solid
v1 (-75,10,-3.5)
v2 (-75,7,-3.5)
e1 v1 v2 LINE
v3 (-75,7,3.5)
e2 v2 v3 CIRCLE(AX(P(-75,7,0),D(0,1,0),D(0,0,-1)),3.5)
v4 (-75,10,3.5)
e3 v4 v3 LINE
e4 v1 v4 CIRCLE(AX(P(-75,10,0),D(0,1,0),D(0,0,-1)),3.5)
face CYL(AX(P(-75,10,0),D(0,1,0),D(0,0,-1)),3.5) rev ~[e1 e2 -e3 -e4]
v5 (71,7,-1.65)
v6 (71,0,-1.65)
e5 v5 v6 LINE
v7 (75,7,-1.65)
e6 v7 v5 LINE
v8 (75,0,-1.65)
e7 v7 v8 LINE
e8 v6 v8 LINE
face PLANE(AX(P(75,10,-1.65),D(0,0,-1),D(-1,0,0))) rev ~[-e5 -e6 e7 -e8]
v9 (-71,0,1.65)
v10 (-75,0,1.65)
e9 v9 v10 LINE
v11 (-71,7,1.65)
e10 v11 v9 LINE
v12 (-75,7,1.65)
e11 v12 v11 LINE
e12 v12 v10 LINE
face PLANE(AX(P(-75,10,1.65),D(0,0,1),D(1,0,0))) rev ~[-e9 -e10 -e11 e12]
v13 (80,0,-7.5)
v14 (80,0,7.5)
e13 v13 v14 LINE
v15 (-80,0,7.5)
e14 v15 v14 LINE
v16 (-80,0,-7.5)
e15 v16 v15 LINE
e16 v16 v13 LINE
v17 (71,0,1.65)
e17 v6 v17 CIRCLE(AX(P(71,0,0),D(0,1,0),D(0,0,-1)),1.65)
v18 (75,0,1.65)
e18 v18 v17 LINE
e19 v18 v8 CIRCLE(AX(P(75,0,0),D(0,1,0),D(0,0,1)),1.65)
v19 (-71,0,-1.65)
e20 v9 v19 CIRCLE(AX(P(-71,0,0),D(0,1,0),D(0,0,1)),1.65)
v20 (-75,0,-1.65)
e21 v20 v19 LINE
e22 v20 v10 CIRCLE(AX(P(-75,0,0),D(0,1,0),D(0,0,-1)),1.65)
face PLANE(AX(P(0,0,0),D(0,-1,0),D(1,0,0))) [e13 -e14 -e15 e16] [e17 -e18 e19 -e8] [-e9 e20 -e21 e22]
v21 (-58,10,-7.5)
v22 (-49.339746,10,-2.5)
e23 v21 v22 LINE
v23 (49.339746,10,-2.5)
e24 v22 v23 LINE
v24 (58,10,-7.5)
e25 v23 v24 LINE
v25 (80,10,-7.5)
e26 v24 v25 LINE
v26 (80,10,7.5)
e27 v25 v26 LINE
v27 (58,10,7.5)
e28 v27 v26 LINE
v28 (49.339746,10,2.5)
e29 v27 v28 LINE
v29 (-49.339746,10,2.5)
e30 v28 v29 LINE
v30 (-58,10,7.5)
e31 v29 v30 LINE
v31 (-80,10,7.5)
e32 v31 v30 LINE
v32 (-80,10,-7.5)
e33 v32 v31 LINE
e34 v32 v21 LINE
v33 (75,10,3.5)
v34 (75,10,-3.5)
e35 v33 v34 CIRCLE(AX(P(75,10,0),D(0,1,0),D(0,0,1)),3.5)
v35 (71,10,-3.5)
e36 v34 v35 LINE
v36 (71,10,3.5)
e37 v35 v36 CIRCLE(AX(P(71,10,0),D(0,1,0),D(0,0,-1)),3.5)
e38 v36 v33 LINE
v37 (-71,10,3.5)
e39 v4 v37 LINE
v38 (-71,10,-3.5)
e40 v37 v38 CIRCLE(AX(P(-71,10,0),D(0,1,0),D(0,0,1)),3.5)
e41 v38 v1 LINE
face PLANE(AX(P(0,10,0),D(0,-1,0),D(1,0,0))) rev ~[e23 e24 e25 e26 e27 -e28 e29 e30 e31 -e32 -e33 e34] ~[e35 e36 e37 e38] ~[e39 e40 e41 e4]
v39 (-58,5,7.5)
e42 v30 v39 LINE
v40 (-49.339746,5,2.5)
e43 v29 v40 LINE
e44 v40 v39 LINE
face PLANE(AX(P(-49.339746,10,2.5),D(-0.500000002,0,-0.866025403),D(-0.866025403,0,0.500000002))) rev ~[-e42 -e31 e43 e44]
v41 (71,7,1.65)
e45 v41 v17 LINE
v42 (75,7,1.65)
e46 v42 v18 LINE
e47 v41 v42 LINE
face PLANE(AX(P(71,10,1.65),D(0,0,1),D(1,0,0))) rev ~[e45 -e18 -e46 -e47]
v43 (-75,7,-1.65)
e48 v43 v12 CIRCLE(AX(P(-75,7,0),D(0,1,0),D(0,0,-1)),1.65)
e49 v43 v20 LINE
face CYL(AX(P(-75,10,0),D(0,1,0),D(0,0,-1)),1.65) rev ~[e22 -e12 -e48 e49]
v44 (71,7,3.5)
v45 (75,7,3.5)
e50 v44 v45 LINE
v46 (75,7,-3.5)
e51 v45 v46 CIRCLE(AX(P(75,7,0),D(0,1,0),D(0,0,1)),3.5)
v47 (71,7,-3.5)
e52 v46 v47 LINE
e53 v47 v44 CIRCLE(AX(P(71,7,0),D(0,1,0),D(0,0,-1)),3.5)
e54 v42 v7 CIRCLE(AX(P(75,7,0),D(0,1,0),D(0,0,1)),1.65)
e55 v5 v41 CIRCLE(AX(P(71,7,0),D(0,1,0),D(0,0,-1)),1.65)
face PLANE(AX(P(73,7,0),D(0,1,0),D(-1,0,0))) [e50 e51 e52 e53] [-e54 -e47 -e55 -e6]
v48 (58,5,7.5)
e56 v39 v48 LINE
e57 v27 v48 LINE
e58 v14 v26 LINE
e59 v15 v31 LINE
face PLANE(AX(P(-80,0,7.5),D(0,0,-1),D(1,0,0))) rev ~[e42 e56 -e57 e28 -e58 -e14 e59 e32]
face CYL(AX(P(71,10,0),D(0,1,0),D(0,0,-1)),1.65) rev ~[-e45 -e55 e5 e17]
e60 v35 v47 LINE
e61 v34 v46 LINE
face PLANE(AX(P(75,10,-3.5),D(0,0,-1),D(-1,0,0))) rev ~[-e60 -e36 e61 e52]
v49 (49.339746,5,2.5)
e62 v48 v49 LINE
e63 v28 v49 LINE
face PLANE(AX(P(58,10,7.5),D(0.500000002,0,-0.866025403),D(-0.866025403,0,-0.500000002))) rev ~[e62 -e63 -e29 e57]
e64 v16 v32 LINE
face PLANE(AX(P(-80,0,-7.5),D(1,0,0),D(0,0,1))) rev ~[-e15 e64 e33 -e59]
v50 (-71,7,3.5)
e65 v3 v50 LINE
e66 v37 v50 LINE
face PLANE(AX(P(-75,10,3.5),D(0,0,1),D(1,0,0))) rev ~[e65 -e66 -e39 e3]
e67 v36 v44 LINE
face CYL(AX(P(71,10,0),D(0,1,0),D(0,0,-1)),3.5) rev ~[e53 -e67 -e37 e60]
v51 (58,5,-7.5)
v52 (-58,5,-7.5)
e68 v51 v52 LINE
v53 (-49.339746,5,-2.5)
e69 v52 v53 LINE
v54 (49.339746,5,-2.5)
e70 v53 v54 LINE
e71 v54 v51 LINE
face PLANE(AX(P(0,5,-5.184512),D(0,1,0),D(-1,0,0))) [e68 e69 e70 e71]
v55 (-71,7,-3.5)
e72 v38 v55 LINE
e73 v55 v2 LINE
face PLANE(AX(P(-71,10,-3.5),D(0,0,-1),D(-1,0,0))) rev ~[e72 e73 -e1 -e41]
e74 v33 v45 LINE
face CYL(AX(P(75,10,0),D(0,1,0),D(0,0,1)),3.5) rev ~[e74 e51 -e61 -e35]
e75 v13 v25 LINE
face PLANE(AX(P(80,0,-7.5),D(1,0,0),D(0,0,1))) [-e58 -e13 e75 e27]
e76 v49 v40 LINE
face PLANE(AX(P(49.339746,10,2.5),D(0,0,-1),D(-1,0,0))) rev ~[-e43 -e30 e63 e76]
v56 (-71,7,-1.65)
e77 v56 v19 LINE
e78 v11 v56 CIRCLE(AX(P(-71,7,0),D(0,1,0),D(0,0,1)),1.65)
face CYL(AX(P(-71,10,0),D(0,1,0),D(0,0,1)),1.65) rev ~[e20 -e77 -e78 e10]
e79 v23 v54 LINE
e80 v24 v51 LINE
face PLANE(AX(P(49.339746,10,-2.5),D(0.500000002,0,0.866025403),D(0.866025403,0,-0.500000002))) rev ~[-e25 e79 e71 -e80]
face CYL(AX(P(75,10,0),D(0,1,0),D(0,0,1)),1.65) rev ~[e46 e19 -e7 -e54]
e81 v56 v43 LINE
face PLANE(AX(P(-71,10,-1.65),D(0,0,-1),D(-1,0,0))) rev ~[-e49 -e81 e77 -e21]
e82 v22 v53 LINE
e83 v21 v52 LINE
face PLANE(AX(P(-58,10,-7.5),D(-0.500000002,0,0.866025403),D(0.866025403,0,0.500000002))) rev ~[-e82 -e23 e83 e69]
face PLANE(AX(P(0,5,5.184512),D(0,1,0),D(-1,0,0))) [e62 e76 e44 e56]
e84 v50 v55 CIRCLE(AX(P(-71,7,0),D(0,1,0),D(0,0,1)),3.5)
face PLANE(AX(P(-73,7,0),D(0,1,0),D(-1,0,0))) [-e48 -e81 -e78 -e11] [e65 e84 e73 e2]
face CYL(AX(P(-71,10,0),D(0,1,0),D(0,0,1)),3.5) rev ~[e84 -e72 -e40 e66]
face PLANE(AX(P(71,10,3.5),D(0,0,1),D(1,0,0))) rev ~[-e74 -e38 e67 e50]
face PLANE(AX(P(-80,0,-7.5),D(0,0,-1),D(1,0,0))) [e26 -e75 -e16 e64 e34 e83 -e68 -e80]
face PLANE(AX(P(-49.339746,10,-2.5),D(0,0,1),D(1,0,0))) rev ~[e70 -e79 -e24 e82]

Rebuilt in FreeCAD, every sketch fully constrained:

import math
import FreeCAD as App
import Part
import Sketcher
from FreeCAD import Vector
Q = App.Units.Quantity

doc = App.newDocument("Part")
params = doc.addObject("Spreadsheet::Sheet", "Params")
for row, (alias, value) in enumerate([
    ("sketch1_width", "160 mm"),
    ("sketch1_height", "15 mm"),
    ("pad1_length", "10 mm"),
    ("sketch2_width", "116 mm"),
    ("sketch2_length", "10 mm"),
    ("pocket1_length", "5 mm"),
    ("sketch3_radius", "3.5 mm"),
    ("sketch3_width", "4 mm"),
    ("pocket2_length", "3 mm"),
    ("sketch4_width", "4 mm"),
    ("sketch4_radius", "1.65 mm"),
], start=1):
    params.set(f"A{row}", alias)
    params.set(f"B{row}", "=" + value)
    params.setAlias(f"B{row}", alias)

body = doc.addObject("PartDesign::Body", "Body")

sketch1 = body.newObject("Sketcher::SketchObject", "Sketch")
sketch1.AttachmentSupport = (doc.getObject("XZ_Plane"), [""])
sketch1.MapMode = "FlatFace"
sketch1.addGeometry(Part.LineSegment(Vector(-80, 8, 0), Vector(-80, -8, 0)), False)
sketch1.addGeometry(Part.LineSegment(Vector(-80, -8, 0), Vector(80, -8, 0)), False)
sketch1.addGeometry(Part.LineSegment(Vector(80, -8, 0), Vector(80, 8, 0)), False)
sketch1.addGeometry(Part.LineSegment(Vector(80, 8, 0), Vector(-80, 8, 0)), False)
sketch1.addConstraint(Sketcher.Constraint("Coincident", 0, 2, 1, 1))
sketch1.addConstraint(Sketcher.Constraint("Coincident", 1, 2, 2, 1))
sketch1.addConstraint(Sketcher.Constraint("Coincident", 2, 2, 3, 1))
sketch1.addConstraint(Sketcher.Constraint("Coincident", 3, 2, 0, 1))
sketch1.addConstraint(Sketcher.Constraint("Vertical", 0))
sketch1.addConstraint(Sketcher.Constraint("Horizontal", 1))
sketch1.addConstraint(Sketcher.Constraint("Vertical", 2))
sketch1.addConstraint(Sketcher.Constraint("Horizontal", 3))
sketch1.addConstraint(Sketcher.Constraint("Symmetric", 0, 2, 2, 2, -1, 1))
sketch1.addConstraint(Sketcher.Constraint("DistanceX", 1, 1, 1, 2, Q("160 mm")))
sketch1.addConstraint(Sketcher.Constraint("DistanceY", 0, 2, 0, 1, Q("15 mm")))
sketch1.setExpression("Constraints[9]", "Params.sketch1_width")
sketch1.setExpression("Constraints[10]", "Params.sketch1_height")
pad1 = body.newObject("PartDesign::Pad", "Pad")
pad1.Profile = sketch1
pad1.setExpression("Length", "Params.pad1_length")
pad1.Reversed = True

sketch2 = body.newObject("Sketcher::SketchObject", "Sketch001")
sketch2.AttachmentSupport = (doc.getObject("XZ_Plane"), [""])
sketch2.MapMode = "FlatFace"
sketch2.AttachmentOffset = App.Placement(Vector(0, 0, -10), App.Rotation())
sketch2.addGeometry(Part.LineSegment(Vector(-58, 8, 0), Vector(58, 8, 0)), False)
sketch2.addGeometry(Part.LineSegment(Vector(58, 8, 0), Vector(49, 2, 0)), False)
sketch2.addGeometry(Part.LineSegment(Vector(49, 2, 0), Vector(-49, 2, 0)), False)
sketch2.addGeometry(Part.LineSegment(Vector(-49, 2, 0), Vector(-58, 8, 0)), False)
sketch2.addGeometry(Part.LineSegment(Vector(49, -2, 0), Vector(58, -8, 0)), False)
sketch2.addGeometry(Part.LineSegment(Vector(58, -8, 0), Vector(-58, -8, 0)), False)
sketch2.addGeometry(Part.LineSegment(Vector(-58, -8, 0), Vector(-49, -2, 0)), False)
sketch2.addGeometry(Part.LineSegment(Vector(-49, -2, 0), Vector(49, -2, 0)), False)
sketch2.addConstraint(Sketcher.Constraint("Coincident", 0, 2, 1, 1))
sketch2.addConstraint(Sketcher.Constraint("Coincident", 1, 2, 2, 1))
sketch2.addConstraint(Sketcher.Constraint("Coincident", 2, 2, 3, 1))
sketch2.addConstraint(Sketcher.Constraint("Coincident", 3, 2, 0, 1))
sketch2.addConstraint(Sketcher.Constraint("Coincident", 4, 2, 5, 1))
sketch2.addConstraint(Sketcher.Constraint("Coincident", 5, 2, 6, 1))
sketch2.addConstraint(Sketcher.Constraint("Coincident", 6, 2, 7, 1))
sketch2.addConstraint(Sketcher.Constraint("Coincident", 7, 2, 4, 1))
sketch2.addConstraint(Sketcher.Constraint("Horizontal", 0))
sketch2.addConstraint(Sketcher.Constraint("Horizontal", 2))
sketch2.addConstraint(Sketcher.Constraint("Horizontal", 5))
sketch2.addConstraint(Sketcher.Constraint("Horizontal", 7))
sketch2.addConstraint(Sketcher.Constraint("Symmetric", 3, 2, 4, 2, -1, 1))
sketch2.addConstraint(Sketcher.Constraint("Symmetric", 1, 2, 6, 2, -1, 1))
sketch2.addConstraint(Sketcher.Constraint("Parallel", 3, 4))
sketch2.addConstraint(Sketcher.Constraint("Parallel", 1, 6))
sketch2.addConstraint(Sketcher.Constraint("Vertical", 0, 2, 4, 2))
sketch2.addConstraint(Sketcher.Constraint("Vertical", 2, 2, 6, 2))
sketch2.addConstraint(Sketcher.Constraint("DistanceX", 0, 1, 0, 2, Q("116 mm")))
sketch2.addConstraint(Sketcher.Constraint("Angle", 1, Q("-150 deg")))
sketch2.addConstraint(Sketcher.Constraint("Distance", 1, Q("10 mm")))
sketch2.addConstraint(Sketcher.Constraint("DistanceY", 4, 2, 1, 2, Q("10 mm")))
sketch2.setExpression("Constraints[18]", "Params.sketch2_width")
sketch2.setExpression("Constraints[20]", "Params.sketch2_length")
pocket1 = body.newObject("PartDesign::Pocket", "Pocket")
pocket1.Profile = sketch2
pocket1.setExpression("Length", "Params.pocket1_length")
pocket1.Reversed = True

sketch3 = body.newObject("Sketcher::SketchObject", "Sketch002")
sketch3.AttachmentSupport = (doc.getObject("XZ_Plane"), [""])
sketch3.MapMode = "FlatFace"
sketch3.AttachmentOffset = App.Placement(Vector(0, 0, -10), App.Rotation())
sketch3.addGeometry(Part.ArcOfCircle(Part.Circle(Vector(75, 0, 0), Vector(0, 0, 1), 3.5), math.radians(-90), math.radians(90)), False)
sketch3.addGeometry(Part.LineSegment(Vector(75, -3.5, 0), Vector(71, -3.5, 0)), False)
sketch3.addGeometry(Part.ArcOfCircle(Part.Circle(Vector(71, 0, 0), Vector(0, 0, 1), 3.5), math.radians(90), math.radians(270)), False)
sketch3.addGeometry(Part.LineSegment(Vector(71, 3.5, 0), Vector(75, 3.5, 0)), False)
sketch3.addGeometry(Part.ArcOfCircle(Part.Circle(Vector(-75, 0, 0), Vector(0, 0, 1), 3.5), math.radians(90), math.radians(270)), False)
sketch3.addGeometry(Part.LineSegment(Vector(-75, 3.5, 0), Vector(-71, 3.5, 0)), False)
sketch3.addGeometry(Part.ArcOfCircle(Part.Circle(Vector(-71, 0, 0), Vector(0, 0, 1), 3.5), math.radians(-90), math.radians(90)), False)
sketch3.addGeometry(Part.LineSegment(Vector(-71, -3.5, 0), Vector(-75, -3.5, 0)), False)
sketch3.addConstraint(Sketcher.Constraint("Tangent", 0, 1, 1, 1))
sketch3.addConstraint(Sketcher.Constraint("Tangent", 1, 2, 2, 2))
sketch3.addConstraint(Sketcher.Constraint("Tangent", 2, 1, 3, 1))
sketch3.addConstraint(Sketcher.Constraint("Tangent", 3, 2, 0, 2))
sketch3.addConstraint(Sketcher.Constraint("Tangent", 4, 1, 5, 1))
sketch3.addConstraint(Sketcher.Constraint("Tangent", 5, 2, 6, 2))
sketch3.addConstraint(Sketcher.Constraint("Tangent", 6, 1, 7, 1))
sketch3.addConstraint(Sketcher.Constraint("Tangent", 7, 2, 4, 2))
sketch3.addConstraint(Sketcher.Constraint("Horizontal", 1))
sketch3.addConstraint(Sketcher.Constraint("Horizontal", 3))
sketch3.addConstraint(Sketcher.Constraint("Horizontal", 5))
sketch3.addConstraint(Sketcher.Constraint("Horizontal", 7))
sketch3.addConstraint(Sketcher.Constraint("Equal", 2, 4))
sketch3.addConstraint(Sketcher.Constraint("Symmetric", 0, 3, 4, 3, -1, 1))
sketch3.addConstraint(Sketcher.Constraint("Symmetric", 2, 3, 6, 3, -2))
sketch3.addConstraint(Sketcher.Constraint("Radius", 0, Q("3.5 mm")))
sketch3.addConstraint(Sketcher.Constraint("DistanceX", 1, 2, 1, 1, Q("4 mm")))
sketch3.addConstraint(Sketcher.Constraint("DistanceX", -1, 1, 0, 3, Q("75 mm")))
sketch3.setExpression("Constraints[15]", "Params.sketch3_radius")
sketch3.setExpression("Constraints[16]", "Params.sketch3_width")
pocket2 = body.newObject("PartDesign::Pocket", "Pocket001")
pocket2.Profile = sketch3
pocket2.setExpression("Length", "Params.pocket2_length")
pocket2.Reversed = True

sketch4 = body.newObject("Sketcher::SketchObject", "Sketch003")
sketch4.AttachmentSupport = (doc.getObject("XZ_Plane"), [""])
sketch4.MapMode = "FlatFace"
sketch4.AttachmentOffset = App.Placement(Vector(0, 0, -10), App.Rotation())
sketch4.addGeometry(Part.ArcOfCircle(Part.Circle(Vector(75, 0, 0), Vector(0, 0, 1), 1.6), math.radians(-90), math.radians(90)), False)
sketch4.addGeometry(Part.LineSegment(Vector(75, -1.6, 0), Vector(71, -1.6, 0)), False)
sketch4.addGeometry(Part.ArcOfCircle(Part.Circle(Vector(71, 0, 0), Vector(0, 0, 1), 1.6), math.radians(90), math.radians(270)), False)
sketch4.addGeometry(Part.LineSegment(Vector(71, 1.6, 0), Vector(75, 1.6, 0)), False)
sketch4.addGeometry(Part.ArcOfCircle(Part.Circle(Vector(-75, 0, 0), Vector(0, 0, 1), 1.6), math.radians(90), math.radians(270)), False)
sketch4.addGeometry(Part.LineSegment(Vector(-75, 1.6, 0), Vector(-71, 1.6, 0)), False)
sketch4.addGeometry(Part.ArcOfCircle(Part.Circle(Vector(-71, 0, 0), Vector(0, 0, 1), 1.6), math.radians(-90), math.radians(90)), False)
sketch4.addGeometry(Part.LineSegment(Vector(-71, -1.6, 0), Vector(-75, -1.6, 0)), False)
sketch4.addConstraint(Sketcher.Constraint("Tangent", 0, 1, 1, 1))
sketch4.addConstraint(Sketcher.Constraint("Tangent", 1, 2, 2, 2))
sketch4.addConstraint(Sketcher.Constraint("Tangent", 2, 1, 3, 1))
sketch4.addConstraint(Sketcher.Constraint("Tangent", 3, 2, 0, 2))
sketch4.addConstraint(Sketcher.Constraint("Tangent", 4, 1, 5, 1))
sketch4.addConstraint(Sketcher.Constraint("Tangent", 5, 2, 6, 2))
sketch4.addConstraint(Sketcher.Constraint("Tangent", 6, 1, 7, 1))
sketch4.addConstraint(Sketcher.Constraint("Tangent", 7, 2, 4, 2))
sketch4.addConstraint(Sketcher.Constraint("Horizontal", 1))
sketch4.addConstraint(Sketcher.Constraint("Horizontal", 3))
sketch4.addConstraint(Sketcher.Constraint("Horizontal", 5))
sketch4.addConstraint(Sketcher.Constraint("Horizontal", 7))
sketch4.addConstraint(Sketcher.Constraint("Equal", 2, 4))
sketch4.addConstraint(Sketcher.Constraint("Symmetric", 0, 3, 4, 3, -1, 1))
sketch4.addConstraint(Sketcher.Constraint("Symmetric", 2, 3, 6, 3, -2))
sketch4.addConstraint(Sketcher.Constraint("DistanceX", 1, 2, 1, 1, Q("4 mm")))
sketch4.addConstraint(Sketcher.Constraint("Radius", 0, Q("1.65 mm")))
sketch4.addConstraint(Sketcher.Constraint("DistanceX", -1, 1, 0, 3, Q("75 mm")))
sketch4.setExpression("Constraints[15]", "Params.sketch4_width")
sketch4.setExpression("Constraints[16]", "Params.sketch4_radius")
pocket3 = body.newObject("PartDesign::Pocket", "Pocket002")
pocket3.Profile = sketch4
pocket3.Type = "ThroughAll"
pocket3.Reversed = True

doc.recompute()
